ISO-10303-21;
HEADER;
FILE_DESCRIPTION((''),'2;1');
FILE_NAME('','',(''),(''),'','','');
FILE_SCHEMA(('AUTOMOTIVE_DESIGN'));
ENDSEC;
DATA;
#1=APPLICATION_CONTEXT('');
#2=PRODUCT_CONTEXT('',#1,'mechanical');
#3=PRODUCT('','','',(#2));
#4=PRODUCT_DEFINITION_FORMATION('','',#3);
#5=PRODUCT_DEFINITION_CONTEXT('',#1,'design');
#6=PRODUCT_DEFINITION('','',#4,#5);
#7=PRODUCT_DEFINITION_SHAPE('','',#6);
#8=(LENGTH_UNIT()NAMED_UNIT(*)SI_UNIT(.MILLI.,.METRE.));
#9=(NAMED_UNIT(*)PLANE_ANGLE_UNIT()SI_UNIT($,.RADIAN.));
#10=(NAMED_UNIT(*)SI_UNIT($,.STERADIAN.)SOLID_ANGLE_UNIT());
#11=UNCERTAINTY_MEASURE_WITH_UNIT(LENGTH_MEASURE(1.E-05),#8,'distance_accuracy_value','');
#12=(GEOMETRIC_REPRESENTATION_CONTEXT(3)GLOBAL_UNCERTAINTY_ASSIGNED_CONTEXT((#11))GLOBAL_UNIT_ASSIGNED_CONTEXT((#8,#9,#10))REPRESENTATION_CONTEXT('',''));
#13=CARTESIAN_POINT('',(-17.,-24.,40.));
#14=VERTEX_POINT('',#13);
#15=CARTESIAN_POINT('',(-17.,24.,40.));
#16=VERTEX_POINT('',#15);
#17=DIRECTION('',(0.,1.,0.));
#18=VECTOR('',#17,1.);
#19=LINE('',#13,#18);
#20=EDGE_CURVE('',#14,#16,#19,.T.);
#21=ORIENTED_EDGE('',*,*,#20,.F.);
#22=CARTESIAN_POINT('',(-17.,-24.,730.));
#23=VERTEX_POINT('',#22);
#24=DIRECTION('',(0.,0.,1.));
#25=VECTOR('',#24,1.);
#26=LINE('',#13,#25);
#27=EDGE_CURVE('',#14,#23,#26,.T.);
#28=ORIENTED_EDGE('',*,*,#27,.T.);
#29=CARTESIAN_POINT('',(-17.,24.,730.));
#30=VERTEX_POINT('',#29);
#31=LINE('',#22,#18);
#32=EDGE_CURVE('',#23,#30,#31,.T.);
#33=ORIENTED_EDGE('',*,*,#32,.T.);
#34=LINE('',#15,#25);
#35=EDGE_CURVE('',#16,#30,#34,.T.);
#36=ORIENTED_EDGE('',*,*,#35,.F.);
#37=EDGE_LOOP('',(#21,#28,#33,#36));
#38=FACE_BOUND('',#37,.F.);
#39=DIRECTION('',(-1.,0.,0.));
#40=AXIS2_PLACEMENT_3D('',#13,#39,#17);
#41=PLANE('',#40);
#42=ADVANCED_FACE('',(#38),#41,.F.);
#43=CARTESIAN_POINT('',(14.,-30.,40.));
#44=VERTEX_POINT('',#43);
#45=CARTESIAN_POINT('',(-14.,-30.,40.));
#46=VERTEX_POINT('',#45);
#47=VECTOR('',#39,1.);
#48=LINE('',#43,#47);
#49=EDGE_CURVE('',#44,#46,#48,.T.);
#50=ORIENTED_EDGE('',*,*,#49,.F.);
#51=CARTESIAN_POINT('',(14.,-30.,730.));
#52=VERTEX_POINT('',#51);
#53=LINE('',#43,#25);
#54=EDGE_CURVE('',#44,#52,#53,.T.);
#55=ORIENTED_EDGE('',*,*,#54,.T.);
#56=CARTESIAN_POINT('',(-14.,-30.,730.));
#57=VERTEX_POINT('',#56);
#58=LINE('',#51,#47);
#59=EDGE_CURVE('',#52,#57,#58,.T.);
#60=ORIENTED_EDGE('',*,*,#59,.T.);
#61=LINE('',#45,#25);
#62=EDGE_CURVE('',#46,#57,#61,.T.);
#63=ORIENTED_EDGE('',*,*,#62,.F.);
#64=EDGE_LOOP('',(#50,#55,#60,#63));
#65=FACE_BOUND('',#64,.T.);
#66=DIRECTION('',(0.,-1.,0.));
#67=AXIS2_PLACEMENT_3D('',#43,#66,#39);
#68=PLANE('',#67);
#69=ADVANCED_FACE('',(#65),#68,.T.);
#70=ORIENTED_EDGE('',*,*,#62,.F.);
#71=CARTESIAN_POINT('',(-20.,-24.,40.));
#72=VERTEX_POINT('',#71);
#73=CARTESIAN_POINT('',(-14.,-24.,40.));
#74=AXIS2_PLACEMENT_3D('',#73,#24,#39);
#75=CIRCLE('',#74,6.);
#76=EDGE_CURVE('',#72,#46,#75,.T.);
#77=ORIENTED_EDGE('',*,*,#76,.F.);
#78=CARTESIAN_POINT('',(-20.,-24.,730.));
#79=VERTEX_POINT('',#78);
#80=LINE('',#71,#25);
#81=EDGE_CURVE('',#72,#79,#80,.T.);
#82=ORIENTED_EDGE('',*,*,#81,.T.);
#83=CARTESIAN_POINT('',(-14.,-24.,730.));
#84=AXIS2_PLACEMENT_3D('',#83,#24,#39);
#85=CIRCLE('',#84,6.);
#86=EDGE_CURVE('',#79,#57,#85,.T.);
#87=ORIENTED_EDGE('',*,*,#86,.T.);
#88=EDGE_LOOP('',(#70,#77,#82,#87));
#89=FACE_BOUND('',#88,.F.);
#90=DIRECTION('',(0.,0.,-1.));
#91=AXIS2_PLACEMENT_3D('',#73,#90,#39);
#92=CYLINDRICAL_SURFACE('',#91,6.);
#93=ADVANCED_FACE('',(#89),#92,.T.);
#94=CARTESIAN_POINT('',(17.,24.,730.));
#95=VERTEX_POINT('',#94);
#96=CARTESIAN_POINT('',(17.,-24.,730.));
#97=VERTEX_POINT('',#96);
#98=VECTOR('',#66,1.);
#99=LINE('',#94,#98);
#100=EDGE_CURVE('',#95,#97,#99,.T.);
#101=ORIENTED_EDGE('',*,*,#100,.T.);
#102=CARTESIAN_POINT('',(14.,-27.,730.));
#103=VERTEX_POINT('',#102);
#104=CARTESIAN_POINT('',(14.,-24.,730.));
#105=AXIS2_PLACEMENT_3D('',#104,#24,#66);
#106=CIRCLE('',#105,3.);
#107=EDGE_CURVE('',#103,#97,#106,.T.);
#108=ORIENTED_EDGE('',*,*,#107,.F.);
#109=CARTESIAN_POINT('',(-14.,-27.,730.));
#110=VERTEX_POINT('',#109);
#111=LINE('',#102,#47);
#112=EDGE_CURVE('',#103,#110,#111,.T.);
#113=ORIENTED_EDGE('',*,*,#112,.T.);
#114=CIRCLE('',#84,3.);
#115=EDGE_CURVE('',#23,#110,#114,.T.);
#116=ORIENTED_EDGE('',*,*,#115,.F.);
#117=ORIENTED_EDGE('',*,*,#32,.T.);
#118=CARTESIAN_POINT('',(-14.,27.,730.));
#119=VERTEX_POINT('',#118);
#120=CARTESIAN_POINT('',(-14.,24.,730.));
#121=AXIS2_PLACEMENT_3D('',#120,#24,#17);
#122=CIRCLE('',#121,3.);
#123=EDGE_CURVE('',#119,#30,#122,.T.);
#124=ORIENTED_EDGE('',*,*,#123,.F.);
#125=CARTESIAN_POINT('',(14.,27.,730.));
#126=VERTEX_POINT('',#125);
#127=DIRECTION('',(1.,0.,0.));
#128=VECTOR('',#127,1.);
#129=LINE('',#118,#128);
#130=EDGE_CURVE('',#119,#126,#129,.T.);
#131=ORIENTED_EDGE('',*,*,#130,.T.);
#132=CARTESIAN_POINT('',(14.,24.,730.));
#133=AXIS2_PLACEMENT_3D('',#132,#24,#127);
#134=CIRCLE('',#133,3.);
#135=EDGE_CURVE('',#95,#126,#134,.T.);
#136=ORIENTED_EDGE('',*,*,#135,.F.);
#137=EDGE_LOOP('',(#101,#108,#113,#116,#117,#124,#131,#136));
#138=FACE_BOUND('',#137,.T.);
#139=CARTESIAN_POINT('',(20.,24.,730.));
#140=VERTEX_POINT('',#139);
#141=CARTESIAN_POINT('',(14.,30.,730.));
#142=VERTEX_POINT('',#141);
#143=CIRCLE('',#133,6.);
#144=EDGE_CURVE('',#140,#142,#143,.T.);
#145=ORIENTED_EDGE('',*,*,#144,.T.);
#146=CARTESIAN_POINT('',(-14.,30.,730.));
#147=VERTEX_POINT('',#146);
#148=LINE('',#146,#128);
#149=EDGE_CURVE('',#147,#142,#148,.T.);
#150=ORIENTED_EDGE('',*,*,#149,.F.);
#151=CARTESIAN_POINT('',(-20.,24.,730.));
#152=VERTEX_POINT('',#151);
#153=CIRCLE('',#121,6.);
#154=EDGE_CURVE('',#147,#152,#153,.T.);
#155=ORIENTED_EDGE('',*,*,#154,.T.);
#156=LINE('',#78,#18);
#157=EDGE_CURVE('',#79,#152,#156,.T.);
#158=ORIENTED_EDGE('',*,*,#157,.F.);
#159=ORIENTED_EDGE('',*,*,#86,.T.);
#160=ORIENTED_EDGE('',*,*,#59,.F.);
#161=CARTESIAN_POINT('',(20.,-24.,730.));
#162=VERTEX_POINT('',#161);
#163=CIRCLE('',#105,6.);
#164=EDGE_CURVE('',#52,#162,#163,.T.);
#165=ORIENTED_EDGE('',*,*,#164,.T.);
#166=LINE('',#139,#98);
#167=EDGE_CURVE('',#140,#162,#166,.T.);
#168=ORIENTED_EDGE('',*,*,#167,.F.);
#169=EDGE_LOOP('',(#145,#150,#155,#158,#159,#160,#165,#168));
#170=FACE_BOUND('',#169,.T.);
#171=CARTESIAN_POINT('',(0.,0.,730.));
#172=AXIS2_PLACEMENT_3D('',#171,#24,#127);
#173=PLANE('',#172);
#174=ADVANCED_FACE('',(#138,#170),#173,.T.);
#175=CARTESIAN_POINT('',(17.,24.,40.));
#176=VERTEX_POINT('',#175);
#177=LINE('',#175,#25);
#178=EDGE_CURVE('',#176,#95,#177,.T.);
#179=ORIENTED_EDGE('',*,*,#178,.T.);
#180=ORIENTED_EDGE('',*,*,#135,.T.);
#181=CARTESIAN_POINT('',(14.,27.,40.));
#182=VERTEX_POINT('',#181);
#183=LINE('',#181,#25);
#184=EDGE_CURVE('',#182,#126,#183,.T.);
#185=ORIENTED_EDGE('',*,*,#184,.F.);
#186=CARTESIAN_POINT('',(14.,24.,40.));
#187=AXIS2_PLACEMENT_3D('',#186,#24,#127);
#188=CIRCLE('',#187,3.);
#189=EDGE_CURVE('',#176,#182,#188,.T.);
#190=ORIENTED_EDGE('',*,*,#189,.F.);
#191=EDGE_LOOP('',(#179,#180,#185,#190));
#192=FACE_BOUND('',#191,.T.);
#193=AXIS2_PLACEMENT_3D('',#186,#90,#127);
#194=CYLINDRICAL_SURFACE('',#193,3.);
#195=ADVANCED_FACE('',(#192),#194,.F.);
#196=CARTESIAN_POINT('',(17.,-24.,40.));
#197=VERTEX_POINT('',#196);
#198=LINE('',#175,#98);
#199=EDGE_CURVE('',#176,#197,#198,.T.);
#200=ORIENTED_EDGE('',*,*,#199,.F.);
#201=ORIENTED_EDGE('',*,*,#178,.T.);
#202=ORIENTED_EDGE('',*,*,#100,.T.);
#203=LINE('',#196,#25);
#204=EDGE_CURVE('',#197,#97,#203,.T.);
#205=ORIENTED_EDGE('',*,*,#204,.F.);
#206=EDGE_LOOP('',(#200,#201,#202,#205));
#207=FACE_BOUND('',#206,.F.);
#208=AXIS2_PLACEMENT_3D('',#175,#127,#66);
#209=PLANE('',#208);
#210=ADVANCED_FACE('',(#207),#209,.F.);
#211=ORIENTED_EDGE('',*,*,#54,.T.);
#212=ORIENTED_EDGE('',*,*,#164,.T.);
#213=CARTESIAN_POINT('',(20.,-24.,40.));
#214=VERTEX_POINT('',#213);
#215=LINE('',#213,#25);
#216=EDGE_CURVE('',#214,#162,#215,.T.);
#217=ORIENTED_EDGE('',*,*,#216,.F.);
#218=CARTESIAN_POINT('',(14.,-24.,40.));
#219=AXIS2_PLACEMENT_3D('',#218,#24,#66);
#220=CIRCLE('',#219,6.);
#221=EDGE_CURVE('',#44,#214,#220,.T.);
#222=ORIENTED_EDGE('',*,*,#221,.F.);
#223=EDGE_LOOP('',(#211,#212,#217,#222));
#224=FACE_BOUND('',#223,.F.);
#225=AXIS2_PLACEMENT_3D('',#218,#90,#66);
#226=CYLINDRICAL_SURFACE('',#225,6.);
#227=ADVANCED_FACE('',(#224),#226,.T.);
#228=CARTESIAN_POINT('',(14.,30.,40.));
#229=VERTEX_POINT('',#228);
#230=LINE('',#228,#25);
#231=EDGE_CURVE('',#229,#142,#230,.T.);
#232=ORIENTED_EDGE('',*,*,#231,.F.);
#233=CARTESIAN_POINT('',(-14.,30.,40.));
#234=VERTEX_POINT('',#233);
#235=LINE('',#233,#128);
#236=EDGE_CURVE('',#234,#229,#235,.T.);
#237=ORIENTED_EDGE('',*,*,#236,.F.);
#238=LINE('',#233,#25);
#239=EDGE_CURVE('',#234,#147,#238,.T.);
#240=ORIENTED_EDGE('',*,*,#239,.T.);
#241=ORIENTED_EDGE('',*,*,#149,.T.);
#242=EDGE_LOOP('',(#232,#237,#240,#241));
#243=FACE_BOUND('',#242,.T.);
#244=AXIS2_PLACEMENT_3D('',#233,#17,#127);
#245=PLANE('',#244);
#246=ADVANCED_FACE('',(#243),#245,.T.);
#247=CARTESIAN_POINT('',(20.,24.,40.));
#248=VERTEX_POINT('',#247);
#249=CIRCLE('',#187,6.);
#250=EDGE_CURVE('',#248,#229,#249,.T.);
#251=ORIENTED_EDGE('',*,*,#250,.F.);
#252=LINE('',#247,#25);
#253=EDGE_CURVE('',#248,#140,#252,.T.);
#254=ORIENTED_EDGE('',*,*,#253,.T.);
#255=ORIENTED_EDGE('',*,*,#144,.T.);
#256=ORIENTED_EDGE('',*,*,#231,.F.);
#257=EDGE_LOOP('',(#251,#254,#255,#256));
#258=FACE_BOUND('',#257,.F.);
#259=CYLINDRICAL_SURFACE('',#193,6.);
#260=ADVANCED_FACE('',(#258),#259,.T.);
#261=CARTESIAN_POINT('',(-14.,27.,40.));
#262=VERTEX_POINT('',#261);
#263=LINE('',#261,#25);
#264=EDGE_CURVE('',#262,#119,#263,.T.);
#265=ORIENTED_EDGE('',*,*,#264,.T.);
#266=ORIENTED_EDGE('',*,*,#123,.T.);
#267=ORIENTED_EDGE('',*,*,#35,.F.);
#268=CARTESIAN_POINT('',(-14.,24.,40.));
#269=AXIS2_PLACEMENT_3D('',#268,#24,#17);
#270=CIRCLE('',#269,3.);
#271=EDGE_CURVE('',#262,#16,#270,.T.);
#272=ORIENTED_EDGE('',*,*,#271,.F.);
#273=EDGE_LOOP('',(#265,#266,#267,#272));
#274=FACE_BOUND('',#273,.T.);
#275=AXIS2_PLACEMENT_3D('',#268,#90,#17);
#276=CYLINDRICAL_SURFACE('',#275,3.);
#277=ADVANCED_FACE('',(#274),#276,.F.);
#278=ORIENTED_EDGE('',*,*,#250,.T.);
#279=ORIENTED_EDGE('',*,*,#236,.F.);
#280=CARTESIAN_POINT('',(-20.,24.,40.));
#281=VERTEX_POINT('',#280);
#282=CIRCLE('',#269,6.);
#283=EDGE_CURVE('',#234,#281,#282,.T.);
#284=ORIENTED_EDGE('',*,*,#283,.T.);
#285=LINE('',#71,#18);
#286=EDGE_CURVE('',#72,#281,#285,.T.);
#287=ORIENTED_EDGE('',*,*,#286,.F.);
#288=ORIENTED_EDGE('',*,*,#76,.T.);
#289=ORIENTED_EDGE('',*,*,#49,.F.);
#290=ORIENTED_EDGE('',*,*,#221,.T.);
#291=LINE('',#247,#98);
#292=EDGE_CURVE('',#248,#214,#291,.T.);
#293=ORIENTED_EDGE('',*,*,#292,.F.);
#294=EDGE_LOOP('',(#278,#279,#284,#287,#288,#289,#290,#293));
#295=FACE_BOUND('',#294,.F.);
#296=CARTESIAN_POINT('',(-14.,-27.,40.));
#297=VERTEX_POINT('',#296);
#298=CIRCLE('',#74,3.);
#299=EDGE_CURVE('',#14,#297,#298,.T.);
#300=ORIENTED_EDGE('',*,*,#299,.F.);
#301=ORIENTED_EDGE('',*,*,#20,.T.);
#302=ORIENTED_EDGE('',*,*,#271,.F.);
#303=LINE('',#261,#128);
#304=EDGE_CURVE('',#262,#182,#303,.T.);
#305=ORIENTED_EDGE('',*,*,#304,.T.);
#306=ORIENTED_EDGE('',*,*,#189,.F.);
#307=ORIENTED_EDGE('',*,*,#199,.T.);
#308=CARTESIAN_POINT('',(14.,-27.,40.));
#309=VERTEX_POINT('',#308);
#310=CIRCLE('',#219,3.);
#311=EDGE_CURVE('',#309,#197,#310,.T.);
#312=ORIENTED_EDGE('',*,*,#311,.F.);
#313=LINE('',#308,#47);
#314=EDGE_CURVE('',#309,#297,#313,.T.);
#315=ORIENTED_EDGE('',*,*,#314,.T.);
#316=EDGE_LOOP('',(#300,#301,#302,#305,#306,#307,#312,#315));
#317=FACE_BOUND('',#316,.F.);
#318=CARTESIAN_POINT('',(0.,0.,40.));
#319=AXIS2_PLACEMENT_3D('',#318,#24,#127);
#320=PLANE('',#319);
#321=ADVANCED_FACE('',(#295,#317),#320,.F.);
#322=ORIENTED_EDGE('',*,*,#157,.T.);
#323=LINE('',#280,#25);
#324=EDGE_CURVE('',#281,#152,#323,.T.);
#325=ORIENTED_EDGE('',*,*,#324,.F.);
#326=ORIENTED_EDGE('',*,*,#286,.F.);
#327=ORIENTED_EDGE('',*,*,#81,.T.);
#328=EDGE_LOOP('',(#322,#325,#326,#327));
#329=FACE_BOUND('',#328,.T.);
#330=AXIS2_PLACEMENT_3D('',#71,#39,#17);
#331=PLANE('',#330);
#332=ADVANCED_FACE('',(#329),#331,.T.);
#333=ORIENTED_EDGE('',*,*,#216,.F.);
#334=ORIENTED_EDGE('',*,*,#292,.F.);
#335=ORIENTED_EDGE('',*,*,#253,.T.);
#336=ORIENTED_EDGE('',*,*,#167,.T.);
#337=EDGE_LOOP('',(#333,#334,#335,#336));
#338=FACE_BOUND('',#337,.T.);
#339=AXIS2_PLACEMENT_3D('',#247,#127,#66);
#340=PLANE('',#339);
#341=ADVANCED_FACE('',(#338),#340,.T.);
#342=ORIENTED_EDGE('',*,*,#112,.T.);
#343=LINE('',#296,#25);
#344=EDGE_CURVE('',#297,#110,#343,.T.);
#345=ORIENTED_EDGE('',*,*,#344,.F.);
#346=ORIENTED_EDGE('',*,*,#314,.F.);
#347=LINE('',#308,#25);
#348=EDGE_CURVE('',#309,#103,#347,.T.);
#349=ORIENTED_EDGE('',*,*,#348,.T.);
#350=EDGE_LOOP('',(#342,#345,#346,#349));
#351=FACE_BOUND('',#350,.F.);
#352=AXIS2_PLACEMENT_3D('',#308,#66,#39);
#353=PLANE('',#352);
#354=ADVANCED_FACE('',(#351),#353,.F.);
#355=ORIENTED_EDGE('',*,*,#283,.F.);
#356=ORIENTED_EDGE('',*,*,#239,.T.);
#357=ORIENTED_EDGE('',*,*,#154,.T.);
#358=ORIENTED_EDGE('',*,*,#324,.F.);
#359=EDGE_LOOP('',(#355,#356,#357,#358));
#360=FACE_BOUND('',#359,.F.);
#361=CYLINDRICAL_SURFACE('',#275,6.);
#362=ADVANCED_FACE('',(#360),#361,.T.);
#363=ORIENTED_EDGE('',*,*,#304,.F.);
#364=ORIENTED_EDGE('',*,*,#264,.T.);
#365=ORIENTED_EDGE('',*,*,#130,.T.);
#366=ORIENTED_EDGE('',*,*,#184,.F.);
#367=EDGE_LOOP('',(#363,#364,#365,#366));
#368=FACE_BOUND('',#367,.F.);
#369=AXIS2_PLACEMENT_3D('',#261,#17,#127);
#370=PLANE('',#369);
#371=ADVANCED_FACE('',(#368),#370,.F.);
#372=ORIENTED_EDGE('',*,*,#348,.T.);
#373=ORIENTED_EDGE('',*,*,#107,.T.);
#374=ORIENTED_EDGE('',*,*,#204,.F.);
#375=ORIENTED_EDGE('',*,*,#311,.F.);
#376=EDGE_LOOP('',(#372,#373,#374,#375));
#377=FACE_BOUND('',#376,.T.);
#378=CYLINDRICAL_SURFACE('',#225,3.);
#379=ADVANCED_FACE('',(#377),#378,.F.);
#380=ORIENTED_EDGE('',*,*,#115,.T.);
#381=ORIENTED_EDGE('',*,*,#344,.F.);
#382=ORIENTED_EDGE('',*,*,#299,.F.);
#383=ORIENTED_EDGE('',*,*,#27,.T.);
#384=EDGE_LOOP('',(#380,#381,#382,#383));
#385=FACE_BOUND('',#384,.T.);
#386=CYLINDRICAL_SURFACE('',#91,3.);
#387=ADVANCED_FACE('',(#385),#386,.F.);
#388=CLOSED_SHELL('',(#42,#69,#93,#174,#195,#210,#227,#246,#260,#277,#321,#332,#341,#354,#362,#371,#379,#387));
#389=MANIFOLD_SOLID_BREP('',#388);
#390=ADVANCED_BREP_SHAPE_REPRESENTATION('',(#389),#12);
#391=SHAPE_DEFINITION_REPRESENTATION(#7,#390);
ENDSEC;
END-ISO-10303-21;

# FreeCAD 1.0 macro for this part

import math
import FreeCAD as App
import Part
import Sketcher
Q = App.Units.Quantity

doc = App.newDocument("Part")
body = doc.addObject("PartDesign::Body", "Body")

sketch1 = doc.addObject("Sketcher::SketchObject", "Sketch")
body.addObject(sketch1)
sketch1.AttachmentSupport = (doc.XY_Plane, [""])
sketch1.MapMode = "FlatFace"
sketch1.AttachmentOffset = App.Placement(App.Vector(0, 0, 40), App.Rotation())
sketch1.addGeometry([
    Part.LineSegment(App.Vector(-20, 24, 0), App.Vector(-20, -24, 0)),
    Part.ArcOfCircle(Part.Circle(App.Vector(-14, -24, 0), App.Vector(0, 0, 1), 6), math.radians(180), math.radians(270)),
    Part.LineSegment(App.Vector(-14, -30, 0), App.Vector(14, -30, 0)),
    Part.ArcOfCircle(Part.Circle(App.Vector(14, -24, 0), App.Vector(0, 0, 1), 6), math.radians(-90), math.radians(0)),
    Part.LineSegment(App.Vector(20, -24, 0), App.Vector(20, 24, 0)),
    Part.ArcOfCircle(Part.Circle(App.Vector(14, 24, 0), App.Vector(0, 0, 1), 6), math.radians(0), math.radians(90)),
    Part.LineSegment(App.Vector(14, 30, 0), App.Vector(-14, 30, 0)),
    Part.ArcOfCircle(Part.Circle(App.Vector(-14, 24, 0), App.Vector(0, 0, 1), 6), math.radians(90), math.radians(180)),
    Part.ArcOfCircle(Part.Circle(App.Vector(-14, 24, 0), App.Vector(0, 0, 1), 3), math.radians(90), math.radians(180)),
    Part.LineSegment(App.Vector(-14, 27, 0), App.Vector(14, 27, 0)),
    Part.ArcOfCircle(Part.Circle(App.Vector(14, 24, 0), App.Vector(0, 0, 1), 3), math.radians(0), math.radians(90)),
    Part.LineSegment(App.Vector(17, 24, 0), App.Vector(17, -24, 0)),
    Part.ArcOfCircle(Part.Circle(App.Vector(14, -24, 0), App.Vector(0, 0, 1), 3), math.radians(-90), math.radians(0)),
    Part.LineSegment(App.Vector(14, -27, 0), App.Vector(-14, -27, 0)),
    Part.ArcOfCircle(Part.Circle(App.Vector(-14, -24, 0), App.Vector(0, 0, 1), 3), math.radians(180), math.radians(270)),
    Part.LineSegment(App.Vector(-17, -24, 0), App.Vector(-17, 24, 0)),
], False)
sketch1.addConstraint([
    Sketcher.Constraint("Tangent", 0, 2, 1, 1),
    Sketcher.Constraint("Tangent", 1, 2, 2, 1),
    Sketcher.Constraint("Tangent", 2, 2, 3, 1),
    Sketcher.Constraint("Tangent", 3, 2, 4, 1),
    Sketcher.Constraint("Tangent", 4, 2, 5, 1),
    Sketcher.Constraint("Tangent", 5, 2, 6, 1),
    Sketcher.Constraint("Tangent", 6, 2, 7, 1),
    Sketcher.Constraint("Tangent", 7, 2, 0, 1),
    Sketcher.Constraint("Tangent", 8, 1, 9, 1),
    Sketcher.Constraint("Tangent", 9, 2, 10, 2),
    Sketcher.Constraint("Tangent", 10, 1, 11, 1),
    Sketcher.Constraint("Tangent", 11, 2, 12, 2),
    Sketcher.Constraint("Tangent", 12, 1, 13, 1),
    Sketcher.Constraint("Tangent", 13, 2, 14, 2),
    Sketcher.Constraint("Tangent", 14, 1, 15, 1),
    Sketcher.Constraint("Tangent", 15, 2, 8, 2),
    Sketcher.Constraint("Vertical", 0),
    Sketcher.Constraint("Horizontal", 2),
    Sketcher.Constraint("Vertical", 4),
    Sketcher.Constraint("Horizontal", 6),
    Sketcher.Constraint("Horizontal", 9),
    Sketcher.Constraint("Vertical", 11),
    Sketcher.Constraint("Horizontal", 13),
    Sketcher.Constraint("Vertical", 15),
    Sketcher.Constraint("Coincident", 8, 3, 7, 3),
    Sketcher.Constraint("Coincident", 10, 3, 5, 3),
    Sketcher.Constraint("Coincident", 12, 3, 3, 3),
    Sketcher.Constraint("Equal", 1, 3),
    Sketcher.Constraint("Equal", 3, 5),
    Sketcher.Constraint("Equal", 5, 7),
    Sketcher.Constraint("Equal", 12, 14),
    Sketcher.Constraint("Symmetric", 1, 3, 5, 3, -1, 1),
    Sketcher.Constraint("Radius", 1, Q("6 mm")),
    Sketcher.Constraint("Radius", 8, Q("3 mm")),
    Sketcher.Constraint("DistanceX", 0, 2, -1, 1, Q("20 mm")),
    Sketcher.Constraint("DistanceY", 1, 2, -1, 1, Q("30 mm")),
])
pad1 = doc.addObject("PartDesign::Pad", "Pad")
body.addObject(pad1)
pad1.Profile = sketch1
pad1.Length = 690

doc.recompute()
